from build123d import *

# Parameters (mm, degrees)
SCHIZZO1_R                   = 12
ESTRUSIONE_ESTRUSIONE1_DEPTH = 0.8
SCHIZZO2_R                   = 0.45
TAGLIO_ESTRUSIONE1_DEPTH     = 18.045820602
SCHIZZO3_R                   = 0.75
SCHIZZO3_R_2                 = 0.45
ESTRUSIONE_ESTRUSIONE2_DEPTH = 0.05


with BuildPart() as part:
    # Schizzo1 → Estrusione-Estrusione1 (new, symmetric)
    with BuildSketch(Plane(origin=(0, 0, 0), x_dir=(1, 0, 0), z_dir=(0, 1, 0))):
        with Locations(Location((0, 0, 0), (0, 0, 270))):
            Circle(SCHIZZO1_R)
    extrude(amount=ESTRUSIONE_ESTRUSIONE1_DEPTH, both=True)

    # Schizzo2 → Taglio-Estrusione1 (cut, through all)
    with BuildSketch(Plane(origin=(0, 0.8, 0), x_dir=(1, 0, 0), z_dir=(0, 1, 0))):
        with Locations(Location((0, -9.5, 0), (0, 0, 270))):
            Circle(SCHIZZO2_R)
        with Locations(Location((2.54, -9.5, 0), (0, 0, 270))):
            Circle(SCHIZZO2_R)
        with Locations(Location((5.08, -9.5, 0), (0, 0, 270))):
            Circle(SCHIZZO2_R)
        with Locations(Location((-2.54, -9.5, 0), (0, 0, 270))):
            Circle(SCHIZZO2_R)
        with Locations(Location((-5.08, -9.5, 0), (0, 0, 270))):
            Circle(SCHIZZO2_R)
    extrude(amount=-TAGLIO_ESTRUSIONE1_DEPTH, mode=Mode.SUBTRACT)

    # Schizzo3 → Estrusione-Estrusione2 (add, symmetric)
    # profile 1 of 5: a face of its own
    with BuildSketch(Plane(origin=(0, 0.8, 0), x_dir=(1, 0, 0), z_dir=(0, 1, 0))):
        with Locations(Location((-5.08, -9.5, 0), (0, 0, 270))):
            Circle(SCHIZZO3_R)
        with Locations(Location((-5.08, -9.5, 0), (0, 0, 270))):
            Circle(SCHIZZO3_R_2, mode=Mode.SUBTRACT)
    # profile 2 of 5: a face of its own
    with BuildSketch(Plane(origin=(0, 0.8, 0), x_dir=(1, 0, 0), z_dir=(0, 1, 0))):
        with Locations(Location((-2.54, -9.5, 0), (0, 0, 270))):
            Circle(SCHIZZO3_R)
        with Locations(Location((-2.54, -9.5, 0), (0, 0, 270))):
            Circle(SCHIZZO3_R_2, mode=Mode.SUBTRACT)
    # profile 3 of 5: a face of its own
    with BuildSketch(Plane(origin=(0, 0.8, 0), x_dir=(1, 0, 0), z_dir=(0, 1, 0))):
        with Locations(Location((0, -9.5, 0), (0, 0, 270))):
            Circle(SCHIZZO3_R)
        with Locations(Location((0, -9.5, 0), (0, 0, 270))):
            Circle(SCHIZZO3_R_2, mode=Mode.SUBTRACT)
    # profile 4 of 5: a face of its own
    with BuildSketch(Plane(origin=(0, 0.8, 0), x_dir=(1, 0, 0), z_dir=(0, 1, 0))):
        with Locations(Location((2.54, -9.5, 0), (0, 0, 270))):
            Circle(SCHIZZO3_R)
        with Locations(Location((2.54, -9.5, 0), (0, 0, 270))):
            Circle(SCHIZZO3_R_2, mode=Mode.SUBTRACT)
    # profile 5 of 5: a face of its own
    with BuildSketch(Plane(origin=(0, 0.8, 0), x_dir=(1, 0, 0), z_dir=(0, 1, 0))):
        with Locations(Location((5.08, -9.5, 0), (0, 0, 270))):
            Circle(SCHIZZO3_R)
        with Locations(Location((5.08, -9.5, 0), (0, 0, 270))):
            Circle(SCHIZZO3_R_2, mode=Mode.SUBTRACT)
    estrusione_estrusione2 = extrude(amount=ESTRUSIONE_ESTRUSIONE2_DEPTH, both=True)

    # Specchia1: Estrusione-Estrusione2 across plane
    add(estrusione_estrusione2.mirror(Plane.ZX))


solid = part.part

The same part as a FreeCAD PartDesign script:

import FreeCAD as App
import Part
import Sketcher
from FreeCAD import Vector
Q = App.Units.Quantity

doc = App.newDocument("Part")
body = doc.addObject("PartDesign::Body", "Body")

# Sketch on XZ plane
sketch1 = doc.addObject("Sketcher::SketchObject", "Sketch")
body.addObject(sketch1)
sketch1.AttachmentSupport = (doc.XZ_Plane, [""])
sketch1.MapMode = "FlatFace"
sketch1.addGeometry(Part.Circle(Vector(0, 0, 0), Vector(0, 0, 1), 12), False)
sketch1.addConstraint(Sketcher.Constraint("Coincident", 0, 3, -1, 1))
sketch1.addConstraint(Sketcher.Constraint("Diameter", 0, Q("24 mm")))
pad1 = doc.addObject("PartDesign::Pad", "Pad")
body.addObject(pad1)
pad1.Profile = sketch1
pad1.Length = 1.6
pad1.Midplane = True

# Sketch on XZ plane
sketch2 = doc.addObject("Sketcher::SketchObject", "Sketch001")
body.addObject(sketch2)
sketch2.AttachmentSupport = (doc.XZ_Plane, [""])
sketch2.MapMode = "FlatFace"
sketch2.AttachmentOffset = App.Placement(Vector(0, 0, -0.8), App.Rotation())
sketch2.addGeometry(Part.Circle(Vector(0, 9.5, 0), Vector(0, 0, 1), 0.45), False)
sketch2.addGeometry(Part.Circle(Vector(2.54, 9.5, 0), Vector(0, 0, 1), 0.45), False)
sketch2.addGeometry(Part.Circle(Vector(5.08, 9.5, 0), Vector(0, 0, 1), 0.45), False)
sketch2.addGeometry(Part.Circle(Vector(-2.54, 9.5, 0), Vector(0, 0, 1), 0.45), False)
sketch2.addGeometry(Part.Circle(Vector(-5.08, 9.5, 0), Vector(0, 0, 1), 0.45), False)
sketch2.addConstraint(Sketcher.Constraint("Equal", 0, 1))
sketch2.addConstraint(Sketcher.Constraint("Equal", 1, 2))
sketch2.addConstraint(Sketcher.Constraint("Equal", 2, 3))
sketch2.addConstraint(Sketcher.Constraint("Equal", 3, 4))
sketch2.addConstraint(Sketcher.Constraint("Symmetric", 1, 3, 3, 3, -2))
sketch2.addConstraint(Sketcher.Constraint("Symmetric", 2, 3, 4, 3, -2))
sketch2.addConstraint(Sketcher.Constraint("PointOnObject", 0, 3, -2))
sketch2.addConstraint(Sketcher.Constraint("Horizontal", 0, 3, 1, 3))
sketch2.addConstraint(Sketcher.Constraint("Horizontal", 1, 3, 2, 3))
sketch2.addConstraint(Sketcher.Constraint("Diameter", 0, Q("0.9 mm")))
sketch2.addConstraint(Sketcher.Constraint("DistanceY", -1, 1, 0, 3, Q("9.5 mm")))
sketch2.addConstraint(Sketcher.Constraint("DistanceX", -1, 1, 1, 3, Q("2.54 mm")))
sketch2.addConstraint(Sketcher.Constraint("DistanceX", -1, 1, 2, 3, Q("5.08 mm")))
pocket1 = doc.addObject("PartDesign::Pocket", "Pocket")
body.addObject(pocket1)
pocket1.Profile = sketch2
pocket1.Type = "ThroughAll"
pocket1.Reversed = True

# Sketch on XZ plane
sketch3 = doc.addObject("Sketcher::SketchObject", "Sketch002")
body.addObject(sketch3)
sketch3.AttachmentSupport = (doc.XZ_Plane, [""])
sketch3.MapMode = "FlatFace"
sketch3.AttachmentOffset = App.Placement(Vector(0, 0, -0.8), App.Rotation())
sketch3.addGeometry(Part.Circle(Vector(-5.08, 9.5, 0), Vector(0, 0, 1), 0.75), False)
sketch3.addGeometry(Part.Circle(Vector(-5.08, 9.5, 0), Vector(0, 0, 1), 0.45), False)
sketch3.addGeometry(Part.Circle(Vector(-2.54, 9.5, 0), Vector(0, 0, 1), 0.75), False)
sketch3.addGeometry(Part.Circle(Vector(-2.54, 9.5, 0), Vector(0, 0, 1), 0.45), False)
sketch3.addGeometry(Part.Circle(Vector(0, 9.5, 0), Vector(0, 0, 1), 0.75), False)
sketch3.addGeometry(Part.Circle(Vector(0, 9.5, 0), Vector(0, 0, 1), 0.45), False)
sketch3.addGeometry(Part.Circle(Vector(2.54, 9.5, 0), Vector(0, 0, 1), 0.75), False)
sketch3.addGeometry(Part.Circle(Vector(2.54, 9.5, 0), Vector(0, 0, 1), 0.45), False)
sketch3.addGeometry(Part.Circle(Vector(5.08, 9.5, 0), Vector(0, 0, 1), 0.75), False)
sketch3.addGeometry(Part.Circle(Vector(5.08, 9.5, 0), Vector(0, 0, 1), 0.45), False)
sketch3.addConstraint(Sketcher.Constraint("Coincident", 1, 3, 0, 3))
sketch3.addConstraint(Sketcher.Constraint("Coincident", 3, 3, 2, 3))
sketch3.addConstraint(Sketcher.Constraint("Coincident", 5, 3, 4, 3))
sketch3.addConstraint(Sketcher.Constraint("Coincident", 7, 3, 6, 3))
sketch3.addConstraint(Sketcher.Constraint("Coincident", 9, 3, 8, 3))
sketch3.addConstraint(Sketcher.Constraint("Equal", 0, 2))
sketch3.addConstraint(Sketcher.Constraint("Equal", 1, 3))
sketch3.addConstraint(Sketcher.Constraint("Equal", 2, 4))
sketch3.addConstraint(Sketcher.Constraint("Equal", 3, 5))
sketch3.addConstraint(Sketcher.Constraint("Equal", 4, 6))
sketch3.addConstraint(Sketcher.Constraint("Equal", 5, 7))
sketch3.addConstraint(Sketcher.Constraint("Equal", 6, 8))
sketch3.addConstraint(Sketcher.Constraint("Equal", 7, 9))
sketch3.addConstraint(Sketcher.Constraint("Symmetric", 2, 3, 6, 3, -2))
sketch3.addConstraint(Sketcher.Constraint("Symmetric", 0, 3, 8, 3, -2))
sketch3.addConstraint(Sketcher.Constraint("PointOnObject", 4, 3, -2))
sketch3.addConstraint(Sketcher.Constraint("Horizontal", 1, 3, 2, 3))
sketch3.addConstraint(Sketcher.Constraint("Horizontal", 3, 3, 4, 3))
sketch3.addConstraint(Sketcher.Constraint("Diameter", 0, Q("1.5 mm")))
sketch3.addConstraint(Sketcher.Constraint("Diameter", 1, Q("0.9 mm")))
sketch3.addConstraint(Sketcher.Constraint("DistanceY", -1, 1, 0, 3, Q("9.5 mm")))
sketch3.addConstraint(Sketcher.Constraint("DistanceX", 0, 3, -1, 1, Q("5.08 mm")))
sketch3.addConstraint(Sketcher.Constraint("DistanceX", 2, 3, -1, 1, Q("2.54 mm")))
pad2 = doc.addObject("PartDesign::Pad", "Pad001")
body.addObject(pad2)
pad2.Profile = sketch3
pad2.Length = 0.1
pad2.Midplane = True
doc.recompute()

mirrored = doc.addObject("PartDesign::Mirrored", "Mirrored")
body.addObject(mirrored)
mirrored.Originals = [pad2]
mirrored.MirrorPlane = (doc.XZ_Plane, [""])
body.Tip = mirrored

doc.recompute()
